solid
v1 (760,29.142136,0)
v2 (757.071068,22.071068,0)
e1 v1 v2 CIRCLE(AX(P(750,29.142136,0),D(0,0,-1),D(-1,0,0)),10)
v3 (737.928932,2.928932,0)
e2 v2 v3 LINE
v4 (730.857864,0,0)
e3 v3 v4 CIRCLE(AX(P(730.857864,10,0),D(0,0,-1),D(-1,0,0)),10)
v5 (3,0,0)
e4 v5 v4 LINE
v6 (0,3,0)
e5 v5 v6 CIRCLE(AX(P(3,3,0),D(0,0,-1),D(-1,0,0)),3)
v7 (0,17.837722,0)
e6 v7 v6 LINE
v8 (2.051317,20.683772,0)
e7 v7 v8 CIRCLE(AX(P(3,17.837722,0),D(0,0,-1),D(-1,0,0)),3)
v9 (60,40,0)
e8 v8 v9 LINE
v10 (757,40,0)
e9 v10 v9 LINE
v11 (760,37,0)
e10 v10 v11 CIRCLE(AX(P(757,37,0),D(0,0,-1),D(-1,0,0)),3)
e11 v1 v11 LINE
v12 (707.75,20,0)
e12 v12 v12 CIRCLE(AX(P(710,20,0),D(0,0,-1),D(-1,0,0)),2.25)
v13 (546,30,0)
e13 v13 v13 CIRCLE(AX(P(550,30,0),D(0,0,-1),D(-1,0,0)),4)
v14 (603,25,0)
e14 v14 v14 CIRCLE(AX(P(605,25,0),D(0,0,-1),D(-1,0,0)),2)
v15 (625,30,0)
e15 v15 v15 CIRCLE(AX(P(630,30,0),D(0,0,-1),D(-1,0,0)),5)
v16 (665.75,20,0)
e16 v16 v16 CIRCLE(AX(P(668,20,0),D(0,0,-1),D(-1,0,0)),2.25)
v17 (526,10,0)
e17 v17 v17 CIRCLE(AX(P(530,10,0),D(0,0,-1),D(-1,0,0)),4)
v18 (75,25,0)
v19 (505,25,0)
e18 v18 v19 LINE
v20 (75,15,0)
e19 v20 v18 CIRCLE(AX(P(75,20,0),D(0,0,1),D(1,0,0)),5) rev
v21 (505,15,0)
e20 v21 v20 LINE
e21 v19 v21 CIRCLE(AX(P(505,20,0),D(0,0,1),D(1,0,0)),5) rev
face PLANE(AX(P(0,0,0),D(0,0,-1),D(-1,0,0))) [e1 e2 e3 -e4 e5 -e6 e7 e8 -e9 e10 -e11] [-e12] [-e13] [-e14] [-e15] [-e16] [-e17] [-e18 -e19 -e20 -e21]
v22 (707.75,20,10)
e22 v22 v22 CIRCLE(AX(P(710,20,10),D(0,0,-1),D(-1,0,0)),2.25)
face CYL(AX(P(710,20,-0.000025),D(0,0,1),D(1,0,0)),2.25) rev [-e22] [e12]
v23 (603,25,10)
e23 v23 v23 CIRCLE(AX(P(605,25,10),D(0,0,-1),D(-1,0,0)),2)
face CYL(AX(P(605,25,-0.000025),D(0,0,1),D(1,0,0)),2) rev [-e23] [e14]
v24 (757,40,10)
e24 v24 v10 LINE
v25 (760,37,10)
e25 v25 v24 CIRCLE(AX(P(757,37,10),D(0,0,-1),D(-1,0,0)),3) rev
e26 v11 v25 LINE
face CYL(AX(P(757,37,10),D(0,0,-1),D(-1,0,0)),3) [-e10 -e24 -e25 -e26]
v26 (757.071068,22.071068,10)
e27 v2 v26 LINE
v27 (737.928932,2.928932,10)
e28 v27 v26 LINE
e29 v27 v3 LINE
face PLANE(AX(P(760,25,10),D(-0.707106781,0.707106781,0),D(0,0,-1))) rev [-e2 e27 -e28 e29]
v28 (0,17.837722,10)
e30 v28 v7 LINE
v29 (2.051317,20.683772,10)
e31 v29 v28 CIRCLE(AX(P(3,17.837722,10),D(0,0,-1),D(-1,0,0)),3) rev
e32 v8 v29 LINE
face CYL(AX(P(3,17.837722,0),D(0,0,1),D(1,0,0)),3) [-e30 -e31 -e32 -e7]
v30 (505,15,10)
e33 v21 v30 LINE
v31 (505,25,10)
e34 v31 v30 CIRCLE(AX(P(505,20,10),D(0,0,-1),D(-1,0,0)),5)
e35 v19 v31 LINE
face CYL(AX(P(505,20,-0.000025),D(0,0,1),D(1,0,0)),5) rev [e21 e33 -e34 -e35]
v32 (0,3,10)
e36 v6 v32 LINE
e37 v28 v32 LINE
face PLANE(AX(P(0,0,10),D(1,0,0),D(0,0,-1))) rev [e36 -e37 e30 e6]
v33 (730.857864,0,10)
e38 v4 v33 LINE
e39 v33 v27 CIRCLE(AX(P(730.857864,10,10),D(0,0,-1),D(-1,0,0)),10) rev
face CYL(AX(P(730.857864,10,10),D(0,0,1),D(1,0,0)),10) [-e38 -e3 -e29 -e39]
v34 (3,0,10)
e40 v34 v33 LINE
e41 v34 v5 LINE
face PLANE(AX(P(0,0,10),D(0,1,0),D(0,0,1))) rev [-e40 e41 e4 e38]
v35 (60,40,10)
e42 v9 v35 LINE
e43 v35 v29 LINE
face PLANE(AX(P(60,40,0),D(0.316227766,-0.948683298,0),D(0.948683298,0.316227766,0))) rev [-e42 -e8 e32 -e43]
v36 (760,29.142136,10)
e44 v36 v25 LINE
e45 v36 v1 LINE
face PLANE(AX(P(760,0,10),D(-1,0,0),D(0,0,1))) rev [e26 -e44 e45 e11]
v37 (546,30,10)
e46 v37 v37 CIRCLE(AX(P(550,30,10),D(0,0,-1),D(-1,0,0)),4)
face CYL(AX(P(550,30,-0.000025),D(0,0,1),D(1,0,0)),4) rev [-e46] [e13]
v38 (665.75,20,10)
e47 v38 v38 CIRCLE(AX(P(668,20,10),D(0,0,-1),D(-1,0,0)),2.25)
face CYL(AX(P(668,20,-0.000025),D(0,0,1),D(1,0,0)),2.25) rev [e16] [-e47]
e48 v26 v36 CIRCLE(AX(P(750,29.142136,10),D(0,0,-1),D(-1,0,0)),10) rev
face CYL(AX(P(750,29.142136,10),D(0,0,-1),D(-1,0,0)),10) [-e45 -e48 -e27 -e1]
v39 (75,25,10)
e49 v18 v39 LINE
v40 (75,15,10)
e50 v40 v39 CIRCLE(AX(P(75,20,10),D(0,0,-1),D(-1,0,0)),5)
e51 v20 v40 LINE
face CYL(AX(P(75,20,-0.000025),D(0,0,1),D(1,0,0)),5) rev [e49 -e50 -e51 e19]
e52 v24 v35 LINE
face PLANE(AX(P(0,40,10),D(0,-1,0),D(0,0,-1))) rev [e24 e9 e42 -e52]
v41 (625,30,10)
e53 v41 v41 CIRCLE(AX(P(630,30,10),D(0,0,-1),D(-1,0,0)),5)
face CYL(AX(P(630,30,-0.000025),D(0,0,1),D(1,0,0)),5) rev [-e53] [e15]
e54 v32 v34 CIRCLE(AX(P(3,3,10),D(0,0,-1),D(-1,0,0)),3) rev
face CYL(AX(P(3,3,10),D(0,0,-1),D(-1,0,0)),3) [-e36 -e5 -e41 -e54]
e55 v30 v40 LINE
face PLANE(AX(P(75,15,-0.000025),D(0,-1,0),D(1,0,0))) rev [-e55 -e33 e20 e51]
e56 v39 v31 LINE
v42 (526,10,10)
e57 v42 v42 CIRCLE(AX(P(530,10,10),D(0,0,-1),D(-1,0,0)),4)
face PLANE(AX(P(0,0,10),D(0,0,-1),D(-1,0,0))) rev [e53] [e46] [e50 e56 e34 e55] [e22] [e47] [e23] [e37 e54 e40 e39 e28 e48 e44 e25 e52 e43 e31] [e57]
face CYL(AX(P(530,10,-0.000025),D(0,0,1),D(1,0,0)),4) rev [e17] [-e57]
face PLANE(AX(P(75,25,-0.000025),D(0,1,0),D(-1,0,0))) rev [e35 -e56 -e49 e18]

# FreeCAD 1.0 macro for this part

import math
import FreeCAD as App
import Part
import Sketcher
Q = App.Units.Quantity


def edges_at(feature, points):
    """Names of the edges that pass closest to the given points."""
    edges = feature.Shape.Edges
    near = lambda p: min(range(len(edges)), key=lambda i: edges[i].distToShape(Part.Vertex(*p))[0])
    return sorted({f"Edge{near(p) + 1}" for p in points})


def add_polygon(sketch, points):
    """Adds a closed chain of lines whose ends are joined by coincident constraints."""
    first, n = sketch.GeometryCount, len(points)
    for a, b in zip(points, points[1:] + points[:1]):
        sketch.addGeometry(Part.LineSegment(App.Vector(*a, 0), App.Vector(*b, 0)), False)
    for i in range(n):
        sketch.addConstraint(Sketcher.Constraint("Coincident", first + i, 2, first + (i + 1) % n, 1))

doc = App.newDocument("Part")
body = doc.addObject("PartDesign::Body", "Body")

# Sketch on XY plane
sketch1 = body.newObject("Sketcher::SketchObject", "Sketch")
sketch1.AttachmentSupport = (doc.getObject("XY_Plane"), [""])
sketch1.MapMode = "FlatFace"
add_polygon(sketch1, [(0, 40), (0, 0), (760, 0), (760, 40)])  # lines 0-3
sketch1.addConstraint([
    Sketcher.Constraint("Vertical", 0),
    Sketcher.Constraint("Horizontal", 1),
    Sketcher.Constraint("Vertical", 2),
    Sketcher.Constraint("Horizontal", 3),
    Sketcher.Constraint("Coincident", 0, 2, -1, 1),
    Sketcher.Constraint("DistanceX", 1, 1, 1, 2, Q("760 mm")),
    Sketcher.Constraint("DistanceY", 0, 2, 0, 1, Q("40 mm")),
])
pad1 = body.newObject("PartDesign::Pad", "Pad")
pad1.Profile = sketch1
pad1.Length = 10

# Sketch on XY plane
sketch2 = body.newObject("Sketcher::SketchObject", "Sketch001")
sketch2.AttachmentSupport = (doc.getObject("XY_Plane"), [""])
sketch2.MapMode = "FlatFace"
sketch2.AttachmentOffset = App.Placement(App.Vector(0, 0, 10), App.Rotation())
add_polygon(sketch2, [(60, 40), (0, 40), (0, 20)])  # lines 0-2
sketch2.addConstraint([
    Sketcher.Constraint("Horizontal", 0),
    Sketcher.Constraint("Vertical", 1),
    Sketcher.Constraint("PointOnObject", 0, 2, -2),
    Sketcher.Constraint("DistanceX", 0, 2, 0, 1, Q("60 mm")),
    Sketcher.Constraint("DistanceY", 1, 2, 1, 1, Q("20 mm")),
    Sketcher.Constraint("DistanceY", -1, 1, 0, 2, Q("40 mm")),
])
pocket1 = body.newObject("PartDesign::Pocket", "Pocket")
pocket1.Profile = sketch2
pocket1.Type = "ThroughAll"
pocket1.Midplane = True

# Sketch on XY plane
sketch3 = body.newObject("Sketcher::SketchObject", "Sketch002")
sketch3.AttachmentSupport = (doc.getObject("XY_Plane"), [""])
sketch3.MapMode = "FlatFace"
sketch3.AttachmentOffset = App.Placement(App.Vector(0, 0, 10), App.Rotation())
sketch3.addGeometry([
    Part.LineSegment(App.Vector(505, 25, 0), App.Vector(75, 25, 0)),
    Part.ArcOfCircle(Part.Circle(App.Vector(75, 20, 0), App.Vector(0, 0, 1), 5), math.radians(90), math.radians(270)),
    Part.LineSegment(App.Vector(75, 15, 0), App.Vector(505, 15, 0)),
    Part.ArcOfCircle(Part.Circle(App.Vector(505, 20, 0), App.Vector(0, 0, 1), 5), math.radians(-90), math.radians(90)),
], False)
sketch3.addConstraint([
    Sketcher.Constraint("Tangent", 0, 2, 1, 1),
    Sketcher.Constraint("Tangent", 1, 2, 2, 1),
    Sketcher.Constraint("Tangent", 2, 2, 3, 1),
    Sketcher.Constraint("Tangent", 3, 2, 0, 1),
    Sketcher.Constraint("Horizontal", 0),
    Sketcher.Constraint("Horizontal", 2),
    Sketcher.Constraint("Radius", 1, Q("5 mm")),
    Sketcher.Constraint("DistanceX", 0, 2, 0, 1, Q("430 mm")),
    Sketcher.Constraint("DistanceX", -1, 1, 1, 3, Q("75 mm")),
    Sketcher.Constraint("DistanceY", -1, 1, 1, 3, Q("20 mm")),
])
pocket2 = body.newObject("PartDesign::Pocket", "Pocket001")
pocket2.Profile = sketch3
pocket2.Type = "ThroughAll"
pocket2.Midplane = True

# Sketch on XY plane
sketch4 = body.newObject("Sketcher::SketchObject", "Sketch003")
sketch4.AttachmentSupport = (doc.getObject("XY_Plane"), [""])
sketch4.MapMode = "FlatFace"
sketch4.AttachmentOffset = App.Placement(App.Vector(0, 0, 10), App.Rotation())
sketch4.addGeometry([
    Part.Circle(App.Vector(530, 10, 0), App.Vector(0, 0, 1), 4),
    Part.Circle(App.Vector(550, 30, 0), App.Vector(0, 0, 1), 4),
], False)
sketch4.addConstraint([
    Sketcher.Constraint("Equal", 0, 1),
    Sketcher.Constraint("Diameter", 0, Q("8 mm")),
    Sketcher.Constraint("DistanceX", -1, 1, 0, 3, Q("530 mm")),
    Sketcher.Constraint("DistanceY", -1, 1, 0, 3, Q("10 mm")),
    Sketcher.Constraint("DistanceX", -1, 1, 1, 3, Q("550 mm")),
    Sketcher.Constraint("DistanceY", -1, 1, 1, 3, Q("30 mm")),
])
pocket3 = body.newObject("PartDesign::Pocket", "Pocket002")
pocket3.Profile = sketch4
pocket3.Type = "ThroughAll"
pocket3.Midplane = True
doc.recompute()

fillet = body.newObject("PartDesign::Fillet", "Fillet")
fillet.Base = (pocket3, edges_at(pocket3, [(0, 20, 5), (0, 0, 5)]))
fillet.Radius = 3
doc.recompute()

chamfer = body.newObject("PartDesign::Chamfer", "Chamfer")
chamfer.Base = (fillet, edges_at(fillet, [(760, 0, 5)]))
chamfer.Size = 25

# Sketch on XY plane
sketch5 = body.newObject("Sketcher::SketchObject", "Sketch004")
sketch5.AttachmentSupport = (doc.getObject("XY_Plane"), [""])
sketch5.MapMode = "FlatFace"
sketch5.AttachmentOffset = App.Placement(App.Vector(0, 0, 10), App.Rotation())
sketch5.addGeometry([
    Part.Circle(App.Vector(710, 20, 0), App.Vector(0, 0, 1), 2.2),
    Part.Circle(App.Vector(668, 20, 0), App.Vector(0, 0, 1), 2.2),
    Part.Circle(App.Vector(630, 30, 0), App.Vector(0, 0, 1), 5),
    Part.Circle(App.Vector(605, 25, 0), App.Vector(0, 0, 1), 2),
], False)
sketch5.addConstraint([
    Sketcher.Constraint("Equal", 0, 1),
    Sketcher.Constraint("Horizontal", 0, 3, 1, 3),
    Sketcher.Constraint("Diameter", 2, Q("10 mm")),
    Sketcher.Constraint("Diameter", 3, Q("4 mm")),
    Sketcher.Constraint("Diameter", 0, Q("4.5 mm")),
    Sketcher.Constraint("DistanceX", -1, 1, 0, 3, Q("710 mm")),
    Sketcher.Constraint("DistanceY", -1, 1, 0, 3, Q("20 mm")),
    Sketcher.Constraint("DistanceX", -1, 1, 1, 3, Q("668 mm")),
    Sketcher.Constraint("DistanceX", -1, 1, 2, 3, Q("630 mm")),
    Sketcher.Constraint("DistanceY", -1, 1, 2, 3, Q("30 mm")),
    Sketcher.Constraint("DistanceX", -1, 1, 3, 3, Q("605 mm")),
    Sketcher.Constraint("DistanceY", -1, 1, 3, 3, Q("25 mm")),
])
pocket4 = body.newObject("PartDesign::Pocket", "Pocket003")
pocket4.Profile = sketch5
pocket4.Type = "ThroughAll"
pocket4.Midplane = True
doc.recompute()

fillet2 = body.newObject("PartDesign::Fillet", "Fillet001")
fillet2.Base = (pocket4, edges_at(pocket4, [(760, 40, 5)]))
fillet2.Radius = 3
doc.recompute()

fillet3 = body.newObject("PartDesign::Fillet", "Fillet002")
fillet3.Base = (fillet2, edges_at(fillet2, [(760, 25, 5), (735, 0, 5)]))
fillet3.Radius = 10

doc.recompute()
